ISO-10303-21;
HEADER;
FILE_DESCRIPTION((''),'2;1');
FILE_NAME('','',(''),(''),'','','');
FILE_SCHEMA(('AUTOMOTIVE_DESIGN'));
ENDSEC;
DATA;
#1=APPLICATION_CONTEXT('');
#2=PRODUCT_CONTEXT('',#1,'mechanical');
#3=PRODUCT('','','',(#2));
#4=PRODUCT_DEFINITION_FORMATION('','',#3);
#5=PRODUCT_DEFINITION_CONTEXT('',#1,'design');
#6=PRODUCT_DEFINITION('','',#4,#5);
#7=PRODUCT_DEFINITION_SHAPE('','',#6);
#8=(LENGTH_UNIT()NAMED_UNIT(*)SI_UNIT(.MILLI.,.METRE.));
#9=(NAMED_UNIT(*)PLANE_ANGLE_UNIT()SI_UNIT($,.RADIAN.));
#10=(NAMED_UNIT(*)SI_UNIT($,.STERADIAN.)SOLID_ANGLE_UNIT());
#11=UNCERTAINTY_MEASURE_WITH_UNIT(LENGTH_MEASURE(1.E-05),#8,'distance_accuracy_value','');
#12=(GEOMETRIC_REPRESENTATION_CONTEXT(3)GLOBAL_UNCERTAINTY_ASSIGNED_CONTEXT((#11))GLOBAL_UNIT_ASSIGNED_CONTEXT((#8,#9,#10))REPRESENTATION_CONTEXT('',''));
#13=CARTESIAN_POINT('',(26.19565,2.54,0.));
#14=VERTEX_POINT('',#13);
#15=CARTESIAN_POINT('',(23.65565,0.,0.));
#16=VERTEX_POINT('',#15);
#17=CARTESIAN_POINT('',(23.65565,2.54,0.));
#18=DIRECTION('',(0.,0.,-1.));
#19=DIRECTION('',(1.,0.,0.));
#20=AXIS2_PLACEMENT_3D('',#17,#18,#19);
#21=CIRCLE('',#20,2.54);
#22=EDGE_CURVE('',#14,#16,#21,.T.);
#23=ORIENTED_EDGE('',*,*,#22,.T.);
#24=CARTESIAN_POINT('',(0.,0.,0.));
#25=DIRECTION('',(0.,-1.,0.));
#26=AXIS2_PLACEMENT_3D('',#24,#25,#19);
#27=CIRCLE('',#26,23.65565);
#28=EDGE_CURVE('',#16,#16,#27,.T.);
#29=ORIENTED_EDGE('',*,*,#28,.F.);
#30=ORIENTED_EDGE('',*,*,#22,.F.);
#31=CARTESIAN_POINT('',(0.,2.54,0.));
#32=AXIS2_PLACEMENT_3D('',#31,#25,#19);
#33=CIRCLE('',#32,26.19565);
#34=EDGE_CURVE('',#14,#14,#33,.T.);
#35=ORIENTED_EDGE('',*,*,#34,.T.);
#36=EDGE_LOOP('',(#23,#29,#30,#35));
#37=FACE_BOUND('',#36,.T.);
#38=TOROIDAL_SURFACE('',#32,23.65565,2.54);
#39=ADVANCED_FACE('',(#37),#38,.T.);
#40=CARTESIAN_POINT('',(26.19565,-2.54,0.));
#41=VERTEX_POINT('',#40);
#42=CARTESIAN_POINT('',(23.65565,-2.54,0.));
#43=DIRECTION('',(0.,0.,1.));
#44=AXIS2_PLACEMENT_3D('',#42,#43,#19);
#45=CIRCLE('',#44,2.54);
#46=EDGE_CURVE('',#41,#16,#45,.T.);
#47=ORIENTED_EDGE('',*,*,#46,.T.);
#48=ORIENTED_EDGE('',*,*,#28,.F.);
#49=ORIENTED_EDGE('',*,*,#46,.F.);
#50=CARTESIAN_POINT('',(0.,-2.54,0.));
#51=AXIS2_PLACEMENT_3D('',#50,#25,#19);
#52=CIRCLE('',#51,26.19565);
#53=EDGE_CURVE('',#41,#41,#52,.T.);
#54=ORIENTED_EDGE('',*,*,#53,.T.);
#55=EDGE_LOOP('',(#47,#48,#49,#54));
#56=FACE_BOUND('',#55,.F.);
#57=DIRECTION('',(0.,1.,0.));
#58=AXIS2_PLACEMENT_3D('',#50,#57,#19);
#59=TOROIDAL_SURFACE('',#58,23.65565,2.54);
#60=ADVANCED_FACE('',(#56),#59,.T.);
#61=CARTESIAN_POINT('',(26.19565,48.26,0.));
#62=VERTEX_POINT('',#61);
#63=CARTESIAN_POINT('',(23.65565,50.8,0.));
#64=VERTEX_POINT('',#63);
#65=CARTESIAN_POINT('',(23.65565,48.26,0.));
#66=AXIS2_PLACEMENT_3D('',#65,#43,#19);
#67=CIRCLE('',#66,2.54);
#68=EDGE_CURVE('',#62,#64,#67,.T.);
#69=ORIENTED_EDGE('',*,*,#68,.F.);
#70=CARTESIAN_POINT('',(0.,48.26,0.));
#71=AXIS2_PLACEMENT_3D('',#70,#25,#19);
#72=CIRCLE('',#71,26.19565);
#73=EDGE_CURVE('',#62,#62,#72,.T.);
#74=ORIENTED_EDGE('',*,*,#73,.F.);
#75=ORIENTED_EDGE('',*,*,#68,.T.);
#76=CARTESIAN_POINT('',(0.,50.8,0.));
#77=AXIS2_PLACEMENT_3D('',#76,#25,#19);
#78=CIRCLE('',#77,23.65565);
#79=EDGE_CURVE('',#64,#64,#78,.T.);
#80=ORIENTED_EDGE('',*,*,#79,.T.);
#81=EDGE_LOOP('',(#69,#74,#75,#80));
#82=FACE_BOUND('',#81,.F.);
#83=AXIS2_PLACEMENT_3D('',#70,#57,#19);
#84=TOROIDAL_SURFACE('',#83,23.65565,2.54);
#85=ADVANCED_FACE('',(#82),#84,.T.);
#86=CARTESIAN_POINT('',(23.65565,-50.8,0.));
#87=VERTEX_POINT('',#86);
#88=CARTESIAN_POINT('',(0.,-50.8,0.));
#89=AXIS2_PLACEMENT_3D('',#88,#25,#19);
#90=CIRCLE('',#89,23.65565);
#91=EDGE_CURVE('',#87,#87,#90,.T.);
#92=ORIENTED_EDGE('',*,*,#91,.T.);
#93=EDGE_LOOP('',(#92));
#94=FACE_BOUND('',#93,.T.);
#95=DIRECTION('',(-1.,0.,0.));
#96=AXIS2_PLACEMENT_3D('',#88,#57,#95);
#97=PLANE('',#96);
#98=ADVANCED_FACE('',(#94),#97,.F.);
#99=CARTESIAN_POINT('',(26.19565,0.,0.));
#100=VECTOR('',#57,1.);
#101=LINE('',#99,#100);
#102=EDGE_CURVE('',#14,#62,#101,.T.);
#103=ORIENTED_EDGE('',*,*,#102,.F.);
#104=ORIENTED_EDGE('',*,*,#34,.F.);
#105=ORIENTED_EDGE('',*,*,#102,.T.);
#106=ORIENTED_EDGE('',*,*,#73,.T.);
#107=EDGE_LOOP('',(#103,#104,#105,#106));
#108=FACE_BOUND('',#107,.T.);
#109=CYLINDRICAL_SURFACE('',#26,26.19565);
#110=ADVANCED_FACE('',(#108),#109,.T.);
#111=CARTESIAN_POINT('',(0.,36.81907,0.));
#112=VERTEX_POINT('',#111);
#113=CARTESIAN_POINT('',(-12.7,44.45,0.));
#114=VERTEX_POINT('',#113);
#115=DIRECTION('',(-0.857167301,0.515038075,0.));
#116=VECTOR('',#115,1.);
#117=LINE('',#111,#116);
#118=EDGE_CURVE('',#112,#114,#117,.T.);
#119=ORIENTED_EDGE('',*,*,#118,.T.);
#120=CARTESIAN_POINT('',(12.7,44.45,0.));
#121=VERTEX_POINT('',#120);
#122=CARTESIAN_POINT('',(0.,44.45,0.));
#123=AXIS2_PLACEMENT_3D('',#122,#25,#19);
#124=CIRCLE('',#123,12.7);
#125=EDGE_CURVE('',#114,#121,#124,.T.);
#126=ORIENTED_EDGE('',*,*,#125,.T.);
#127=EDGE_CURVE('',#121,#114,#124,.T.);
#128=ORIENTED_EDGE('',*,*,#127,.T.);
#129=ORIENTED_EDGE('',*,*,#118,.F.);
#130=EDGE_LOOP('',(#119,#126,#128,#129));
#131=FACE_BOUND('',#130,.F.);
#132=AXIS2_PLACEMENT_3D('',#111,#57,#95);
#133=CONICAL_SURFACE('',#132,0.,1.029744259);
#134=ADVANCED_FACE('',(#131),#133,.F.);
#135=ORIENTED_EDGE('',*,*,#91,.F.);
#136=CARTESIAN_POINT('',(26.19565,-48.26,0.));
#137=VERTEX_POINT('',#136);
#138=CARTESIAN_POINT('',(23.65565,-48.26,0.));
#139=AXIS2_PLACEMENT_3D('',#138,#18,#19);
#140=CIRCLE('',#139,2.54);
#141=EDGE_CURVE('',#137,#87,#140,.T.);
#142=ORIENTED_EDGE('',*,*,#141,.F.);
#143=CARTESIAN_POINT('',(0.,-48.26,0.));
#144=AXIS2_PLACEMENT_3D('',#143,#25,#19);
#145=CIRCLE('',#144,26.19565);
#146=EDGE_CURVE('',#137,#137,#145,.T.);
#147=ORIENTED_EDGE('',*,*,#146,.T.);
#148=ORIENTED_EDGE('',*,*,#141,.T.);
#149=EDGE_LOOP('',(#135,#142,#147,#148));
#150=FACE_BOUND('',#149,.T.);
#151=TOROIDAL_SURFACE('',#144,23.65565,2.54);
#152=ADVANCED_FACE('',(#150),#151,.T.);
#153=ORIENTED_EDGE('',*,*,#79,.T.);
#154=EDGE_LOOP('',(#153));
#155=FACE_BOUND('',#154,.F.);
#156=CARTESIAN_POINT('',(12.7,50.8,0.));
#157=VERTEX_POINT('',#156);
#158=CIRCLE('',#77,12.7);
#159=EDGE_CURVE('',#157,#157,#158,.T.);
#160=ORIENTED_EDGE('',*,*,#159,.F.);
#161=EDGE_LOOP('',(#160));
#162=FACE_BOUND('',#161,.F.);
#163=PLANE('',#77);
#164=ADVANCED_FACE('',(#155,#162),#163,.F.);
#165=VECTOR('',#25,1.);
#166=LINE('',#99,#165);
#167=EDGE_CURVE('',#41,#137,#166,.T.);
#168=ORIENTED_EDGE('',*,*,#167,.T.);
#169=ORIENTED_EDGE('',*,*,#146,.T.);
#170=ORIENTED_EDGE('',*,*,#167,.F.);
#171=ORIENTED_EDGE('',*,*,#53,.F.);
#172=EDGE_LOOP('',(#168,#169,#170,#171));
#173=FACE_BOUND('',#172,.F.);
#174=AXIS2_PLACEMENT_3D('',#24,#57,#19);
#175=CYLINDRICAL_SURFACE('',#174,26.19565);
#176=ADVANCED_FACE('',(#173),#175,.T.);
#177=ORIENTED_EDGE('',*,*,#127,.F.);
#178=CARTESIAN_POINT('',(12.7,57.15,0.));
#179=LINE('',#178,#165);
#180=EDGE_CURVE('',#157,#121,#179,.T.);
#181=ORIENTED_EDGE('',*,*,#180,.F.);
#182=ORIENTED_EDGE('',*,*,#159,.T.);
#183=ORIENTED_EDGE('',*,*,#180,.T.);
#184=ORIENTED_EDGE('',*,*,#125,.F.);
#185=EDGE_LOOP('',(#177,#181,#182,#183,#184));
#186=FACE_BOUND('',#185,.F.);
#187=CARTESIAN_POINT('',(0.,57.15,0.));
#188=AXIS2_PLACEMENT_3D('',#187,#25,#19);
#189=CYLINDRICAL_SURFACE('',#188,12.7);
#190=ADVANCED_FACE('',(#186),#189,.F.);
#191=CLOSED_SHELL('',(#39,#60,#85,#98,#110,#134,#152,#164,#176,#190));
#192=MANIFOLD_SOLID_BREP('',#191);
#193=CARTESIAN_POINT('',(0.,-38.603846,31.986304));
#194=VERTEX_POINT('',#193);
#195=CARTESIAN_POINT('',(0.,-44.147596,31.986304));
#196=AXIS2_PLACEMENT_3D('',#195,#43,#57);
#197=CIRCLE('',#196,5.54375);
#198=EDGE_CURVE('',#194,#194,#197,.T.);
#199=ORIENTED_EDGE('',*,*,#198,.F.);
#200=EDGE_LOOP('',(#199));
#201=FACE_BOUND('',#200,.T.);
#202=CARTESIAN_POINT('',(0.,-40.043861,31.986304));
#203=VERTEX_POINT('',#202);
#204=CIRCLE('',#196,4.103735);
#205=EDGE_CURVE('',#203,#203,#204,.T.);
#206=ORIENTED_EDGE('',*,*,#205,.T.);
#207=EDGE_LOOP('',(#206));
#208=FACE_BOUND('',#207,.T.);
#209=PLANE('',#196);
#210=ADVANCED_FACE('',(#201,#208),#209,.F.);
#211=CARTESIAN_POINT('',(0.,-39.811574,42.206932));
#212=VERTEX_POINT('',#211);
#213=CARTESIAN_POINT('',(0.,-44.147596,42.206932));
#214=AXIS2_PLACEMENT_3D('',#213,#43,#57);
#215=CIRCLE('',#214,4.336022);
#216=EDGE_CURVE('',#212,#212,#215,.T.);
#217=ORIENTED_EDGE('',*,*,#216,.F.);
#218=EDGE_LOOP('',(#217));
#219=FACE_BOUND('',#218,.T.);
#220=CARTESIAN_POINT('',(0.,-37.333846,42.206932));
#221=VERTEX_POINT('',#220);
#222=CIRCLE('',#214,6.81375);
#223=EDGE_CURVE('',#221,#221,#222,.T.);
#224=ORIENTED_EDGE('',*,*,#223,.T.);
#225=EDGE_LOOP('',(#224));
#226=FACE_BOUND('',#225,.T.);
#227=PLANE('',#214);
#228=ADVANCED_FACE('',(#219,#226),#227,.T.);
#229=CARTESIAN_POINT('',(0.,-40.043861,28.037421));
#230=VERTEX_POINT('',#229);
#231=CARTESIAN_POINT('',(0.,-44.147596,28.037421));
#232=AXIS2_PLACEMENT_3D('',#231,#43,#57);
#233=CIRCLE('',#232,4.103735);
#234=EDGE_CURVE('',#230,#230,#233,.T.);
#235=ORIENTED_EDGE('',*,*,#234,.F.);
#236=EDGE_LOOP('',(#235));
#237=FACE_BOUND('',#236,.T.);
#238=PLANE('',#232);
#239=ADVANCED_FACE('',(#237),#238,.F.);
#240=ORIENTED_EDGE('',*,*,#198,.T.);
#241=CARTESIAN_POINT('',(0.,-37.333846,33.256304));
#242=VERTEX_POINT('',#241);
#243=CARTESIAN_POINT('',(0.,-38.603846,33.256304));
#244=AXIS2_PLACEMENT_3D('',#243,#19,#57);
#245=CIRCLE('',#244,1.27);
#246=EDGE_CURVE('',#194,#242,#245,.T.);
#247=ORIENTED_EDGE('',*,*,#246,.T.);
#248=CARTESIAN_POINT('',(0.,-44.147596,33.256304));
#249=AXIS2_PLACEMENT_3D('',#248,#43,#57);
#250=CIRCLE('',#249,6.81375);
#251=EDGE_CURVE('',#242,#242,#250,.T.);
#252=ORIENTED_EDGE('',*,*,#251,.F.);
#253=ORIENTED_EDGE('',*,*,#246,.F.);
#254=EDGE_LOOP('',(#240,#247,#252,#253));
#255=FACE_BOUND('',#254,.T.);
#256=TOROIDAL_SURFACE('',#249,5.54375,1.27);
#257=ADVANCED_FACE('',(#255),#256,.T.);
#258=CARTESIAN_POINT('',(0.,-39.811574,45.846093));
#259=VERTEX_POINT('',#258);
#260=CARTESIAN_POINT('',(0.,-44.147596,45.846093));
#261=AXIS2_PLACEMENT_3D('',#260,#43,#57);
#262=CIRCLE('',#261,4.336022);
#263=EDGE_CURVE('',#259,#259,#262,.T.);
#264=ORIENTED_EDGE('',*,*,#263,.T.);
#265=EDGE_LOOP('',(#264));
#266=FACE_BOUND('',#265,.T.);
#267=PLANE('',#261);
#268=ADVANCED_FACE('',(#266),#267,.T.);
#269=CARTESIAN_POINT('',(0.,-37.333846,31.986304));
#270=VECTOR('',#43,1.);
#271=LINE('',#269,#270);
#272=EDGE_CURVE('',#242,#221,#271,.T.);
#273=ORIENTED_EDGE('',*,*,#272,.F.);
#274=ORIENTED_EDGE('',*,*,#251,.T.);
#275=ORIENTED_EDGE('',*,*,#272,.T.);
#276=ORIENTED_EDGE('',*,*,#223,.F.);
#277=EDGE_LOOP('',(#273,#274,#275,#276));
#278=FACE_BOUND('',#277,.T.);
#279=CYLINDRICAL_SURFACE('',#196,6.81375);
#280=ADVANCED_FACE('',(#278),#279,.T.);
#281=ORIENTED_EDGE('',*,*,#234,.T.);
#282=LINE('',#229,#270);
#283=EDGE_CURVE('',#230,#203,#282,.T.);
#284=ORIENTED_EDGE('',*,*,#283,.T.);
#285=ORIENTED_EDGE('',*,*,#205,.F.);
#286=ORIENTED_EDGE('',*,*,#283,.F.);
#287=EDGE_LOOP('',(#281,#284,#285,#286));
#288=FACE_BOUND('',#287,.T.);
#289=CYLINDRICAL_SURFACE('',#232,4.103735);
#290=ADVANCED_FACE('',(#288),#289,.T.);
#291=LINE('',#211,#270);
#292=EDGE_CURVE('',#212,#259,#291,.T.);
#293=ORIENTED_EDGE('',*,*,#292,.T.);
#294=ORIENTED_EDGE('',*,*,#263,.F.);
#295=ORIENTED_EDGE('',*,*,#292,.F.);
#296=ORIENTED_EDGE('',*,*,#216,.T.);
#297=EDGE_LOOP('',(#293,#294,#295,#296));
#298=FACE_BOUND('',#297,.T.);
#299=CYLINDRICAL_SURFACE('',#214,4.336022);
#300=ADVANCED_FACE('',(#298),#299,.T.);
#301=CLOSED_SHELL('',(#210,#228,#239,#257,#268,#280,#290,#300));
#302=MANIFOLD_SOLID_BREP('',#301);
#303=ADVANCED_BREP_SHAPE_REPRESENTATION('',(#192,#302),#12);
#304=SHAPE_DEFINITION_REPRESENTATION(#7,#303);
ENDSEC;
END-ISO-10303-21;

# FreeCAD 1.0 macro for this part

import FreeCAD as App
import Part
import Sketcher
from FreeCAD import Vector
Q = App.Units.Quantity


def edges_at(feature, points):
    """Names of the edges that pass closest to the given points."""
    edges = feature.Shape.Edges
    near = lambda p: min(range(len(edges)), key=lambda i: edges[i].distToShape(Part.Vertex(*p))[0])
    return sorted({f"Edge{near(p) + 1}" for p in points})


def add_polygon(sketch, points):
    """Adds a closed chain of lines whose ends are joined by coincident constraints."""
    first, n = sketch.GeometryCount, len(points)
    for a, b in zip(points, points[1:] + points[:1]):
        sketch.addGeometry(Part.LineSegment(App.Vector(*a, 0), App.Vector(*b, 0)), False)
    for i in range(n):
        sketch.addConstraint(Sketcher.Constraint("Coincident", first + i, 2, first + (i + 1) % n, 1))

doc = App.newDocument("Part")
body = doc.addObject("PartDesign::Body", "Body")

sketch1 = body.newObject("Sketcher::SketchObject", "Sketch")
sketch1.AttachmentSupport = (doc.getObject("XZ_Plane"), [""])
sketch1.MapMode = "FlatFace"
sketch1.addGeometry(Part.Circle(Vector(0, 0, 0), Vector(0, 0, 1), 26), False)
sketch1.addConstraint(Sketcher.Constraint("Coincident", 0, 3, -1, 1))
sketch1.addConstraint(Sketcher.Constraint("Diameter", 0, 52.391301))
pad1 = body.newObject("PartDesign::Pad", "Pad")
pad1.Profile = sketch1
pad1.Length = Q("2 in")
pad1.Reversed = True
doc.recompute()

fillet = body.newObject("PartDesign::Fillet", "Fillet")
fillet.Base = (pad1, ["Edge1"])
fillet.UseAllEdges = True
fillet.Radius = Q("0.1 in")
body2 = doc.addObject("PartDesign::Body", "Body001")
doc.recompute()

body2.BaseFeature = body
doc.recompute()

mirroring = doc.addObject("Part::Mirroring", "Mirroring")
mirroring.Source = body
mirroring.Base = Vector(0, 0, 0)
mirroring.Normal = Vector(0, -1, 0)
body3 = doc.addObject("PartDesign::Body", "Body002")
body3.BaseFeature = mirroring
boolean = body2.newObject("PartDesign::Boolean", "Boolean")
boolean.Type = "Fuse"
boolean.addObjects([body3])
doc.recompute()

sketch2 = body2.newObject("Sketcher::SketchObject", "Sketch001")
sketch2.AttachmentSupport = (doc.getObject("XZ_Plane001"), [""])
sketch2.MapMode = "FlatFace"
sketch2.AttachmentOffset = App.Placement(Vector(0, 0, -2 * 25.4), App.Rotation())
sketch2.addGeometry(Part.Circle(Vector(0, 0, 0), Vector(0, 0, 1), 13), False)
sketch2.addConstraint(Sketcher.Constraint("Coincident", 0, 3, -1, 1))
sketch2.addConstraint(Sketcher.Constraint("Diameter", 0, Q("1 in")))
doc.recompute()
hole = body2.newObject("PartDesign::Hole", "Hole")
hole.Profile = sketch2
hole.ThreadType = "None"
hole.Diameter = Q("1 in")
hole.DepthType = "Dimension"
hole.Depth = Q("0.25 in")
hole.DrillPoint = "Angled"
hole.DrillPointAngle = 118
hole.Reversed = True
body4 = doc.addObject("PartDesign::Body", "Body003")

sketch3 = body4.newObject("Sketcher::SketchObject", "Sketch002")
sketch3.AttachmentSupport = (doc.getObject("YZ_Plane003"), [""])
sketch3.MapMode = "FlatFace"
add_polygon(sketch3, [(-39.8, 45.8), (-44.1, 45.8), (-44.1, 28), (-40, 28), (-40, 32), (-37.3, 32), (-37.3, 42.2), (-39.8, 42.2)])
sketch3.addGeometry(Part.LineSegment(Vector(-44.1, 28, 0), Vector(-44.1, 45.8, 0)), True)
sketch3.addConstraint(Sketcher.Constraint("Horizontal", 0))
sketch3.addConstraint(Sketcher.Constraint("Vertical", 1))
sketch3.addConstraint(Sketcher.Constraint("Horizontal", 2))
sketch3.addConstraint(Sketcher.Constraint("Vertical", 3))
sketch3.addConstraint(Sketcher.Constraint("Horizontal", 4))
sketch3.addConstraint(Sketcher.Constraint("Vertical", 5))
sketch3.addConstraint(Sketcher.Constraint("Horizontal", 6))
sketch3.addConstraint(Sketcher.Constraint("Vertical", 7))
sketch3.addConstraint(Sketcher.Constraint("Vertical", 8))
sketch3.addConstraint(Sketcher.Constraint("Coincident", 8, 1, 1, 2))
sketch3.addConstraint(Sketcher.Constraint("Horizontal", 7, 2, 8, 2))
sketch3.addConstraint(Sketcher.Constraint("DistanceX", 0, 2, 0, 1, 4.336022))
sketch3.addConstraint(Sketcher.Constraint("DistanceY", 5, 1, 5, 2, 10.220628))
sketch3.addConstraint(Sketcher.Constraint("DistanceY", 7, 1, 7, 2, 3.639162))
sketch3.addConstraint(Sketcher.Constraint("DistanceX", 2, 1, 2, 2, 4.103735))
sketch3.addConstraint(Sketcher.Constraint("DistanceX", 4, 1, 4, 2, 2.710015))
sketch3.addConstraint(Sketcher.Constraint("DistanceY", 1, 2, 1, 1, 17.808672))
sketch3.addConstraint(Sketcher.Constraint("DistanceY", -1, 1, 1, 2, 28.037421))
sketch3.addConstraint(Sketcher.Constraint("DistanceX", 2, 2, -1, 1, 40.043861))
revolution = body4.newObject("PartDesign::Revolution", "Revolution")
revolution.Profile = sketch3
revolution.ReferenceAxis = (sketch3, ["Axis0"])
revolution.Angle = 360
doc.recompute()

fillet2 = body4.newObject("PartDesign::Fillet", "Fillet001")
fillet2.Base = (revolution, edges_at(revolution, [(0, -50.961, 31.986)]))
fillet2.Radius = Q("0.05 in")
mirroring.Visibility = False

doc.recompute()
